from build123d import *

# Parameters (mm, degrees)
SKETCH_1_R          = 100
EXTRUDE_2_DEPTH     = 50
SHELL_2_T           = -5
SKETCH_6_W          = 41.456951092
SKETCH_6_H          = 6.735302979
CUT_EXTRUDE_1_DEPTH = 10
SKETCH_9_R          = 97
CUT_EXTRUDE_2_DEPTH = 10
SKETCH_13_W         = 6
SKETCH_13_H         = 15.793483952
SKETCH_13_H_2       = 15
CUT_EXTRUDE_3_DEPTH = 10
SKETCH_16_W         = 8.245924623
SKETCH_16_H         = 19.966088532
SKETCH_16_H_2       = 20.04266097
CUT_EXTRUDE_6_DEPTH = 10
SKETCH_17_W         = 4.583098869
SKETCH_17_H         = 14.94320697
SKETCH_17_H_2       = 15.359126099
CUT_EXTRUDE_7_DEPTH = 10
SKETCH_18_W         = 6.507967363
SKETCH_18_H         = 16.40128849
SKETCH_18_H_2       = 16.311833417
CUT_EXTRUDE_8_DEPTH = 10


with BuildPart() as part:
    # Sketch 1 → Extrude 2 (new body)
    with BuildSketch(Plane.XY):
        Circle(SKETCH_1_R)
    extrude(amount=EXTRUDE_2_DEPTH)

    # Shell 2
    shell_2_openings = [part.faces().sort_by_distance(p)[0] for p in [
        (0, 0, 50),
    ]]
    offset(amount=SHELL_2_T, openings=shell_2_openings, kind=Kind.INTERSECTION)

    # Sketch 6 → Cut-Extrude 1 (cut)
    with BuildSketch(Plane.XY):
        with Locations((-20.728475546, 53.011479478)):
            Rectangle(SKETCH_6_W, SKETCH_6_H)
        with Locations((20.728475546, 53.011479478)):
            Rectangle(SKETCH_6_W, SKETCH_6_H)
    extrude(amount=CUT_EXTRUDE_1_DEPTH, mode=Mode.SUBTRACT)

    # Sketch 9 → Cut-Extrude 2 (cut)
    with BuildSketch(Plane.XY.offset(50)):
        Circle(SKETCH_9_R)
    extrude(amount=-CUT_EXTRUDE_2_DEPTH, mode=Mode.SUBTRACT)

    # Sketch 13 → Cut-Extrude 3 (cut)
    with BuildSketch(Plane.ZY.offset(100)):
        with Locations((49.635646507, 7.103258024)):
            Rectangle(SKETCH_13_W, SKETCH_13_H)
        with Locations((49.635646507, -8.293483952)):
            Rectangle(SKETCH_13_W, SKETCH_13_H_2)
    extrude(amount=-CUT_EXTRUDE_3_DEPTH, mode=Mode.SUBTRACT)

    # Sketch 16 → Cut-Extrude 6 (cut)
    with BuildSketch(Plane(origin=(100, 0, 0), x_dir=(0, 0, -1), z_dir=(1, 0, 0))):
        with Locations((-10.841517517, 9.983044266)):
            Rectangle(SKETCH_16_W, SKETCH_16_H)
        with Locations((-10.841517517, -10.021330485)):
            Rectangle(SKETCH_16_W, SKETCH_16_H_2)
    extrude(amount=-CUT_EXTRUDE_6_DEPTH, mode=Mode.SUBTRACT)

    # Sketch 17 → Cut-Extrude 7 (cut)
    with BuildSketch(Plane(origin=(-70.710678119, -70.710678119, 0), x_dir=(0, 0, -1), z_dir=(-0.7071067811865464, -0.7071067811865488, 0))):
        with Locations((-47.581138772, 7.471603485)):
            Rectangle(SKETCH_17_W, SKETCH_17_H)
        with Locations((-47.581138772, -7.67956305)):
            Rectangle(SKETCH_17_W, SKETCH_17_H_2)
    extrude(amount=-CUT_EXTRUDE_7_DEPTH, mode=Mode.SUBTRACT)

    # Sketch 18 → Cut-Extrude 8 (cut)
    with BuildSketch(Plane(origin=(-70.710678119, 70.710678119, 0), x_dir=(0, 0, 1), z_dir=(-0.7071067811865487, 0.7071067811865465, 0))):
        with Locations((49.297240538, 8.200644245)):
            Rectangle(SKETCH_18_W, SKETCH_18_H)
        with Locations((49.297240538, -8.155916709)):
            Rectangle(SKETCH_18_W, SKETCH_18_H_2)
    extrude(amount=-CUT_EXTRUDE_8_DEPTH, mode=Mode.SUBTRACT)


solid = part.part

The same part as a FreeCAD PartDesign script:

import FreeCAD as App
import Part
import Sketcher
from FreeCAD import Vector


def faces_at(feature, points):
    """Names of the faces that lie closest to the given points."""
    faces = feature.Shape.Faces
    near = lambda p: min(range(len(faces)), key=lambda i: faces[i].distToShape(Part.Vertex(*p))[0])
    return sorted({f"Face{near(p) + 1}" for p in points})

doc = App.newDocument("Part")
body = doc.addObject("PartDesign::Body", "Body")

sketch1 = body.newObject("Sketcher::SketchObject", "Sketch")
sketch1.AttachmentSupport = (doc.getObject("XY_Plane"), [""])
sketch1.MapMode = "FlatFace"
sketch1.addGeometry(Part.Circle(Vector(0, 0, 0), Vector(0, 0, 1), 100), False)
sketch1.addConstraint([
    Sketcher.Constraint("Coincident", 0, 3, -1, 1),
    Sketcher.Constraint("Diameter", 0, 200.0),
])
pad1 = body.newObject("PartDesign::Pad", "Pad")
pad1.Profile = sketch1
pad1.Length = 50
doc.recompute()

thickness = body.newObject("PartDesign::Thickness", "Thickness")
thickness.Base = (pad1, faces_at(pad1, [(0, 0, 50)]))
thickness.Value = 5
thickness.Reversed = True
thickness.Join = "Intersection"

sketch2 = body.newObject("Sketcher::SketchObject", "Sketch001")
sketch2.AttachmentSupport = (doc.getObject("XY_Plane"), [""])
sketch2.MapMode = "FlatFace"
sketch2.addGeometry([
    Part.LineSegment(Vector(-41, 56, 0), Vector(-41, 50, 0)),
    Part.LineSegment(Vector(-41, 50, 0), Vector(41, 50, 0)),
    Part.LineSegment(Vector(41, 50, 0), Vector(41, 56, 0)),
    Part.LineSegment(Vector(41, 56, 0), Vector(-41, 56, 0)),
], False)
sketch2.addConstraint([
    Sketcher.Constraint("Coincident", 0, 2, 1, 1),
    Sketcher.Constraint("Coincident", 1, 2, 2, 1),
    Sketcher.Constraint("Coincident", 2, 2, 3, 1),
    Sketcher.Constraint("Coincident", 3, 2, 0, 1),
    Sketcher.Constraint("Vertical", 0),
    Sketcher.Constraint("Horizontal", 1),
    Sketcher.Constraint("Vertical", 2),
    Sketcher.Constraint("Horizontal", 3),
    Sketcher.Constraint("DistanceX", 1, 1, 1, 2, 82.913902),
    Sketcher.Constraint("DistanceY", 0, 2, 0, 1, 6.735303),
    Sketcher.Constraint("DistanceX", 0, 2, -1, 1, 41.456951),
    Sketcher.Constraint("DistanceY", -1, 1, 2, 2, 56.379131),
])
pocket1 = body.newObject("PartDesign::Pocket", "Pocket")
pocket1.Profile = sketch2
pocket1.Length = 10
pocket1.Reversed = True

sketch3 = body.newObject("Sketcher::SketchObject", "Sketch002")
sketch3.AttachmentSupport = (doc.getObject("XY_Plane"), [""])
sketch3.MapMode = "FlatFace"
sketch3.AttachmentOffset = App.Placement(Vector(0, 0, 50), App.Rotation())
sketch3.addGeometry(Part.Circle(Vector(0, 0, 0), Vector(0, 0, 1), 97), False)
sketch3.addConstraint([
    Sketcher.Constraint("Coincident", 0, 3, -1, 1),
    Sketcher.Constraint("Diameter", 0, 194.0),
])
pocket2 = body.newObject("PartDesign::Pocket", "Pocket001")
pocket2.Profile = sketch3
pocket2.Length = 10

sketch4 = body.newObject("Sketcher::SketchObject", "Sketch003")
sketch4.AttachmentSupport = (doc.getObject("YZ_Plane"), [""])
sketch4.MapMode = "FlatFace"
sketch4.AttachmentOffset = App.Placement(Vector(0, 0, -100), App.Rotation())
sketch4.addGeometry([
    Part.LineSegment(Vector(15, 47, 0), Vector(-16, 47, 0)),
    Part.LineSegment(Vector(-16, 47, 0), Vector(-16, 53, 0)),
    Part.LineSegment(Vector(-16, 53, 0), Vector(15, 53, 0)),
    Part.LineSegment(Vector(15, 53, 0), Vector(15, 47, 0)),
], False)
sketch4.addConstraint([
    Sketcher.Constraint("Coincident", 0, 2, 1, 1),
    Sketcher.Constraint("Coincident", 1, 2, 2, 1),
    Sketcher.Constraint("Coincident", 2, 2, 3, 1),
    Sketcher.Constraint("Coincident", 3, 2, 0, 1),
    Sketcher.Constraint("Horizontal", 0),
    Sketcher.Constraint("Vertical", 1),
    Sketcher.Constraint("Horizontal", 2),
    Sketcher.Constraint("Vertical", 3),
    Sketcher.Constraint("DistanceY", 1, 1, 1, 2, 6.0),
    Sketcher.Constraint("DistanceX", -1, 1, 2, 2, 15.0),
    Sketcher.Constraint("DistanceX", 0, 2, 0, 1, 30.793484),
    Sketcher.Constraint("DistanceY", -1, 1, 0, 2, 46.635647),
])
pocket3 = body.newObject("PartDesign::Pocket", "Pocket002")
pocket3.Profile = sketch4
pocket3.Length = 10
pocket3.Reversed = True

sketch5 = body.newObject("Sketcher::SketchObject", "Sketch004")
sketch5.AttachmentSupport = (doc.getObject("YZ_Plane"), [""])
sketch5.MapMode = "FlatFace"
sketch5.AttachmentOffset = App.Placement(Vector(0, 0, 100), App.Rotation())
sketch5.addGeometry([
    Part.LineSegment(Vector(20, 15, 0), Vector(-20, 15, 0)),
    Part.LineSegment(Vector(-20, 15, 0), Vector(-20, 7, 0)),
    Part.LineSegment(Vector(-20, 7, 0), Vector(20, 7, 0)),
    Part.LineSegment(Vector(20, 7, 0), Vector(20, 15, 0)),
], False)
sketch5.addConstraint([
    Sketcher.Constraint("Coincident", 0, 2, 1, 1),
    Sketcher.Constraint("Coincident", 1, 2, 2, 1),
    Sketcher.Constraint("Coincident", 2, 2, 3, 1),
    Sketcher.Constraint("Coincident", 3, 2, 0, 1),
    Sketcher.Constraint("Horizontal", 0),
    Sketcher.Constraint("Vertical", 1),
    Sketcher.Constraint("Horizontal", 2),
    Sketcher.Constraint("Vertical", 3),
    Sketcher.Constraint("DistanceX", 0, 2, 0, 1, 40.00875),
    Sketcher.Constraint("DistanceY", 1, 2, 1, 1, 8.245925),
    Sketcher.Constraint("DistanceX", 0, 2, -1, 1, 20.042661),
    Sketcher.Constraint("DistanceY", -1, 1, 0, 2, 14.96448),
])
pocket4 = body.newObject("PartDesign::Pocket", "Pocket003")
pocket4.Profile = sketch5
pocket4.Length = 10

sketch6 = body.newObject("Sketcher::SketchObject", "Sketch005")
sketch6.Placement = App.Placement(Vector(-70.710678, -70.710678, 0), App.Rotation(Vector(0, 0, -1), Vector(0.707106781, -0.707106781, 0), Vector(-0.707106781, -0.707106781, 0), "ZXY"))
sketch6.addGeometry([
    Part.LineSegment(Vector(-49.9, 14.9, 0), Vector(-49.9, -15.4, 0)),
    Part.LineSegment(Vector(-49.9, -15.4, 0), Vector(-45.3, -15.4, 0)),
    Part.LineSegment(Vector(-45.3, -15.4, 0), Vector(-45.3, 14.9, 0)),
    Part.LineSegment(Vector(-45.3, 14.9, 0), Vector(-49.9, 14.9, 0)),
], False)
sketch6.addConstraint([
    Sketcher.Constraint("Coincident", 0, 2, 1, 1),
    Sketcher.Constraint("Coincident", 1, 2, 2, 1),
    Sketcher.Constraint("Coincident", 2, 2, 3, 1),
    Sketcher.Constraint("Coincident", 3, 2, 0, 1),
    Sketcher.Constraint("Vertical", 0),
    Sketcher.Constraint("Horizontal", 1),
    Sketcher.Constraint("Vertical", 2),
    Sketcher.Constraint("Horizontal", 3),
    Sketcher.Constraint("DistanceX", 1, 1, 1, 2, 4.583099),
    Sketcher.Constraint("DistanceY", 0, 2, 0, 1, 30.302333),
    Sketcher.Constraint("DistanceX", 0, 2, -1, 1, 49.872688),
    Sketcher.Constraint("DistanceY", 0, 2, -1, 1, 15.359126),
])
pocket5 = body.newObject("PartDesign::Pocket", "Pocket004")
pocket5.Profile = sketch6
pocket5.Length = 10

sketch7 = body.newObject("Sketcher::SketchObject", "Sketch006")
sketch7.Placement = App.Placement(Vector(-70.710678, 70.710678, 0), App.Rotation(Vector(0, 0, 1), Vector(0.707106781, 0.707106781, 0), Vector(-0.707106781, 0.707106781, 0), "ZXY"))
sketch7.addGeometry([
    Part.LineSegment(Vector(46, 16, 0), Vector(46, -16, 0)),
    Part.LineSegment(Vector(46, -16, 0), Vector(53, -16, 0)),
    Part.LineSegment(Vector(53, -16, 0), Vector(53, 16, 0)),
    Part.LineSegment(Vector(53, 16, 0), Vector(46, 16, 0)),
], False)
sketch7.addConstraint([
    Sketcher.Constraint("Coincident", 0, 2, 1, 1),
    Sketcher.Constraint("Coincident", 1, 2, 2, 1),
    Sketcher.Constraint("Coincident", 2, 2, 3, 1),
    Sketcher.Constraint("Coincident", 3, 2, 0, 1),
    Sketcher.Constraint("Vertical", 0),
    Sketcher.Constraint("Horizontal", 1),
    Sketcher.Constraint("Vertical", 2),
    Sketcher.Constraint("Horizontal", 3),
    Sketcher.Constraint("DistanceY", 0, 2, 0, 1, 32.713122),
    Sketcher.Constraint("DistanceX", 1, 1, 1, 2, 6.507967),
    Sketcher.Constraint("DistanceY", -1, 1, 2, 2, 16.401288),
    Sketcher.Constraint("DistanceX", -1, 1, 0, 2, 46.043257),
])
pocket6 = body.newObject("PartDesign::Pocket", "Pocket005")
pocket6.Profile = sketch7
pocket6.Length = 10

doc.recompute()
